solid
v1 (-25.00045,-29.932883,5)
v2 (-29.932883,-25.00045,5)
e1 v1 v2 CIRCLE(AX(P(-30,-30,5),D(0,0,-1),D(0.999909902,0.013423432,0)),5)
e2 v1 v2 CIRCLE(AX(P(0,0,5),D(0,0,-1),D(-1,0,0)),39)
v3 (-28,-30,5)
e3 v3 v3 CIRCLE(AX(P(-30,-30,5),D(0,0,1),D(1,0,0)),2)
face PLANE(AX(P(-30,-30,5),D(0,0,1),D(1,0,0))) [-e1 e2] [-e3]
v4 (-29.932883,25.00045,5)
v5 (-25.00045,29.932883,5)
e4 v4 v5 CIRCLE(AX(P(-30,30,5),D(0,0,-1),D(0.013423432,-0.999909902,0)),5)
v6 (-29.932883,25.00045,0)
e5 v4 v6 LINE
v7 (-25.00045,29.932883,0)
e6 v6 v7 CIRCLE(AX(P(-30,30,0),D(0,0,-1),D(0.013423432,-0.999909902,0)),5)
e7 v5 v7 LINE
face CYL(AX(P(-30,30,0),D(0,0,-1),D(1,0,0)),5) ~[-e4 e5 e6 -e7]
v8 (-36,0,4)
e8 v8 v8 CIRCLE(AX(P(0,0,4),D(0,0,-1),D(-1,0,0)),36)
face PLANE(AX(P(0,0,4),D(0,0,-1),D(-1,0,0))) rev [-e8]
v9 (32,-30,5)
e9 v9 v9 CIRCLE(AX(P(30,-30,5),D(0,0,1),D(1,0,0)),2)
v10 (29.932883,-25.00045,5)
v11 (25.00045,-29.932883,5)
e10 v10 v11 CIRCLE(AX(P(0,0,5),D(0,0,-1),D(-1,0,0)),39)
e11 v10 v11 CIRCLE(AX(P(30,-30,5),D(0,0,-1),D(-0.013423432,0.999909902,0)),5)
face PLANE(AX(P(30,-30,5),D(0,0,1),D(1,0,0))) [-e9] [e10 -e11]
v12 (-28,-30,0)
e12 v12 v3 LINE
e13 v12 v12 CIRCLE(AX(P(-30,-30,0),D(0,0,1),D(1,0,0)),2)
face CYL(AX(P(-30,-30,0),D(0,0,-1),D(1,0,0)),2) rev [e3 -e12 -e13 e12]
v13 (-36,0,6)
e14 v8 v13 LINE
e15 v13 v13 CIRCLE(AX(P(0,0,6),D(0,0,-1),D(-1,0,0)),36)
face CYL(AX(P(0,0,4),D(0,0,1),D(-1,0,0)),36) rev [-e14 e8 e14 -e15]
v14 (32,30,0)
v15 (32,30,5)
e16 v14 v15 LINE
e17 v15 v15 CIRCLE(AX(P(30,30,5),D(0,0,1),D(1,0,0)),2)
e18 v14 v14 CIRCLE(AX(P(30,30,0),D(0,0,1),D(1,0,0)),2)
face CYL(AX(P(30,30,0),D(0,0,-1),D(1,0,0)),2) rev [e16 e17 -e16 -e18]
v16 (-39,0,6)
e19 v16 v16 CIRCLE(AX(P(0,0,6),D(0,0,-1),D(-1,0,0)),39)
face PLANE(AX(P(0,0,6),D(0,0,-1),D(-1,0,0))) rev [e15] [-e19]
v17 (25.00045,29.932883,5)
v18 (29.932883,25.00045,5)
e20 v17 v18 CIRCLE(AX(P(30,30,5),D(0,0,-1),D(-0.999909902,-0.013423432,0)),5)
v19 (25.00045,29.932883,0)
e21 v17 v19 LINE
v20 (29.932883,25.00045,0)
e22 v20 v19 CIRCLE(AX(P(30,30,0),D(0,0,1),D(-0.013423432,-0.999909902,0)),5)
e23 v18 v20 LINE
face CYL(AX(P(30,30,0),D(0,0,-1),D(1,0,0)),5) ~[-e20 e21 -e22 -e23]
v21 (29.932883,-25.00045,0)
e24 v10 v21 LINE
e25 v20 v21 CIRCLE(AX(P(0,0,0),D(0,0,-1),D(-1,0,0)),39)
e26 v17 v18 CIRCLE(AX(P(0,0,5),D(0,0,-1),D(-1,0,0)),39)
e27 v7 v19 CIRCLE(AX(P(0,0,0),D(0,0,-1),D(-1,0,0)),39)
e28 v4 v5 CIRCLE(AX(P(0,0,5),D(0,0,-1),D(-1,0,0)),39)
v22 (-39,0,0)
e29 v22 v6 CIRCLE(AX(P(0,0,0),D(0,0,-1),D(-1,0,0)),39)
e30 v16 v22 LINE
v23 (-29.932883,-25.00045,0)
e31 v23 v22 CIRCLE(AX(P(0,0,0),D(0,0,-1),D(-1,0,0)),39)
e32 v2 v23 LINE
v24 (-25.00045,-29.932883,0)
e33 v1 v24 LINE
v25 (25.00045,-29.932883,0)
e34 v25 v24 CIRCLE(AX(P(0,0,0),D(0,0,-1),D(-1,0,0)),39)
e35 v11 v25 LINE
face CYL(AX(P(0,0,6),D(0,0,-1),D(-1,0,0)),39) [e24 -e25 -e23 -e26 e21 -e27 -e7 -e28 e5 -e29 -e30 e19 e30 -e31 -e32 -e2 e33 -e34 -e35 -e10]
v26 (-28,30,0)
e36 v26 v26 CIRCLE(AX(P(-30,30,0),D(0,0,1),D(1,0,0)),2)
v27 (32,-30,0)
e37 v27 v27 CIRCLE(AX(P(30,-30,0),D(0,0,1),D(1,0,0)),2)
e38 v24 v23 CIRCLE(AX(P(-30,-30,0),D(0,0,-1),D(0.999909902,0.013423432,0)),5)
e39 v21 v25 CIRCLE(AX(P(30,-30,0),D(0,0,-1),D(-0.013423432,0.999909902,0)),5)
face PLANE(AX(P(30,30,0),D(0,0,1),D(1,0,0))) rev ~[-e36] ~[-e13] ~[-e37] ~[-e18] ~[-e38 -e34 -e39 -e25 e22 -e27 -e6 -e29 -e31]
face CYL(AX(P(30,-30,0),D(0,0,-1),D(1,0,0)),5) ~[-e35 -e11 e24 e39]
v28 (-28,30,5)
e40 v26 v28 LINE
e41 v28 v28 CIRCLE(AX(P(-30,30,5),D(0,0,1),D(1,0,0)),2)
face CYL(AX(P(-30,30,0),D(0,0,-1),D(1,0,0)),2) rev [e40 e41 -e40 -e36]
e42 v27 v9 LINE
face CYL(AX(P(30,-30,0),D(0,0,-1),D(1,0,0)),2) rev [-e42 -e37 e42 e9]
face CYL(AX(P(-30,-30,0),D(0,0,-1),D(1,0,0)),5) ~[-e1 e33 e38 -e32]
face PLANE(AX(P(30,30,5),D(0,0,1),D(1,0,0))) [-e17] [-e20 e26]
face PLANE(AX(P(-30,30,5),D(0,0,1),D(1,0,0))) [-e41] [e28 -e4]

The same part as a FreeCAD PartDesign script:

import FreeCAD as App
import Part
import Sketcher
from FreeCAD import Vector

doc = App.newDocument("Part")
params = doc.addObject("Spreadsheet::Sheet", "Params")
for row, (alias, value) in enumerate([
    ("sketch1_width", "39 mm"),
    ("sketch1_width2", "36 mm"),
    ("sketch1_height", "6 mm"),
    ("sketch1_height2", "4 mm"),
    ("revolution_angle", "360 deg"),
    ("sketch2_diameter", "10 mm"),
    ("sketch2_diameter2", "4 mm"),
    ("pad1_length", "5 mm"),
], start=1):
    params.set(f"A{row}", alias)
    params.set(f"B{row}", "=" + value)
    params.setAlias(f"B{row}", alias)

body = doc.addObject("PartDesign::Body", "Body")

sketch1 = doc.addObject("Sketcher::SketchObject", "Sketch")
body.addObject(sketch1)
sketch1.AttachmentSupport = (doc.XZ_Plane, [""])
sketch1.MapMode = "FlatFace"
sketch1.addGeometry([
    Part.LineSegment(Vector(-39, 6, 0), Vector(-39, 0, 0)),
    Part.LineSegment(Vector(-39, 0, 0), Vector(0, 0, 0)),
    Part.LineSegment(Vector(0, 0, 0), Vector(0, 4, 0)),
    Part.LineSegment(Vector(0, 4, 0), Vector(-36, 4, 0)),
    Part.LineSegment(Vector(-36, 4, 0), Vector(-36, 6, 0)),
    Part.LineSegment(Vector(-36, 6, 0), Vector(-39, 6, 0)),
], False)
sketch1.addConstraint([
    Sketcher.Constraint("Coincident", 0, 2, 1, 1),
    Sketcher.Constraint("Coincident", 1, 2, 2, 1),
    Sketcher.Constraint("Coincident", 2, 2, 3, 1),
    Sketcher.Constraint("Coincident", 3, 2, 4, 1),
    Sketcher.Constraint("Coincident", 4, 2, 5, 1),
    Sketcher.Constraint("Coincident", 5, 2, 0, 1),
    Sketcher.Constraint("Vertical", 0),
    Sketcher.Constraint("Horizontal", 1),
    Sketcher.Constraint("Vertical", 2),
    Sketcher.Constraint("Horizontal", 3),
    Sketcher.Constraint("Vertical", 4),
    Sketcher.Constraint("Horizontal", 5),
    Sketcher.Constraint("Coincident", 1, 2, -1, 1),
    Sketcher.Constraint("DistanceX", 1, 1, 1, 2, 39.0),
    Sketcher.Constraint("DistanceX", 3, 2, 3, 1, 36.0),
    Sketcher.Constraint("DistanceY", 0, 2, 0, 1, 6.0),
    Sketcher.Constraint("DistanceY", 2, 1, 2, 2, 4.0),
])
sketch1.setExpression("Constraints[13]", "Params.sketch1_width")
sketch1.setExpression("Constraints[14]", "Params.sketch1_width2")
sketch1.setExpression("Constraints[15]", "Params.sketch1_height")
sketch1.setExpression("Constraints[16]", "Params.sketch1_height2")
revolution = doc.addObject("PartDesign::Revolution", "Revolution")
body.addObject(revolution)
revolution.Profile = sketch1
revolution.ReferenceAxis = (sketch1, ["V_Axis"])
revolution.setExpression("Angle", "Params.revolution_angle")

sketch2 = doc.addObject("Sketcher::SketchObject", "Sketch001")
body.addObject(sketch2)
sketch2.AttachmentSupport = (doc.XY_Plane, [""])
sketch2.MapMode = "FlatFace"
sketch2.addGeometry([
    Part.Circle(Vector(30, 30, 0), Vector(0, 0, 1), 5),
    Part.Circle(Vector(30, 30, 0), Vector(0, 0, 1), 2),
    Part.Circle(Vector(-30, 30, 0), Vector(0, 0, 1), 5),
    Part.Circle(Vector(-30, 30, 0), Vector(0, 0, 1), 2),
    Part.Circle(Vector(-30, -30, 0), Vector(0, 0, 1), 5),
    Part.Circle(Vector(-30, -30, 0), Vector(0, 0, 1), 2),
    Part.Circle(Vector(30, -30, 0), Vector(0, 0, 1), 5),
    Part.Circle(Vector(30, -30, 0), Vector(0, 0, 1), 2),
], False)
sketch2.addConstraint([
    Sketcher.Constraint("Coincident", 1, 3, 0, 3),
    Sketcher.Constraint("Coincident", 3, 3, 2, 3),
    Sketcher.Constraint("Coincident", 5, 3, 4, 3),
    Sketcher.Constraint("Coincident", 7, 3, 6, 3),
    Sketcher.Constraint("Equal", 0, 2),
    Sketcher.Constraint("Equal", 1, 3),
    Sketcher.Constraint("Equal", 2, 4),
    Sketcher.Constraint("Equal", 3, 5),
    Sketcher.Constraint("Equal", 4, 6),
    Sketcher.Constraint("Equal", 5, 7),
    Sketcher.Constraint("Symmetric", 0, 3, 4, 3, -1, 1),
    Sketcher.Constraint("Symmetric", 2, 3, 6, 3, -1, 1),
    Sketcher.Constraint("Symmetric", 0, 3, 2, 3, -2),
    Sketcher.Constraint("Diameter", 0, 10.0),
    Sketcher.Constraint("Diameter", 1, 4.0),
    Sketcher.Constraint("DistanceX", -1, 1, 0, 3, 30.0),
    Sketcher.Constraint("DistanceY", -1, 1, 0, 3, 30.0),
])
sketch2.setExpression("Constraints[13]", "Params.sketch2_diameter")
sketch2.setExpression("Constraints[14]", "Params.sketch2_diameter2")
pad1 = doc.addObject("PartDesign::Pad", "Pad")
body.addObject(pad1)
pad1.Profile = sketch2
pad1.setExpression("Length", "Params.pad1_length")

doc.recompute()
